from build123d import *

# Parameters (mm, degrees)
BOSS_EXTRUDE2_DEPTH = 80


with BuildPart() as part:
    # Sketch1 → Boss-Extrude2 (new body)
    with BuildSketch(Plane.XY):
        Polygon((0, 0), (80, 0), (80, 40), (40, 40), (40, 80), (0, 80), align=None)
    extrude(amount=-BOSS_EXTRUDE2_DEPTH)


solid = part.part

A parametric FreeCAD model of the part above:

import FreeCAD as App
import Part
import Sketcher


def add_polygon(sketch, points):
    """Adds a closed chain of lines whose ends are joined by coincident constraints."""
    first, n = sketch.GeometryCount, len(points)
    for a, b in zip(points, points[1:] + points[:1]):
        sketch.addGeometry(Part.LineSegment(App.Vector(*a, 0), App.Vector(*b, 0)), False)
    for i in range(n):
        sketch.addConstraint(Sketcher.Constraint("Coincident", first + i, 2, first + (i + 1) % n, 1))

doc = App.newDocument("Part")
body = doc.addObject("PartDesign::Body", "Body")

# Sketch on XY plane
sketch1 = doc.addObject("Sketcher::SketchObject", "Sketch")
body.addObject(sketch1)
sketch1.AttachmentSupport = (doc.XY_Plane, [""])
sketch1.MapMode = "FlatFace"
add_polygon(sketch1, [(0, 0), (80, 0), (80, 40), (40, 40), (40, 80), (0, 80)])  # lines 0-5
sketch1.addConstraint(Sketcher.Constraint("Horizontal", 0))
sketch1.addConstraint(Sketcher.Constraint("Vertical", 1))
sketch1.addConstraint(Sketcher.Constraint("Horizontal", 2))
sketch1.addConstraint(Sketcher.Constraint("Vertical", 3))
sketch1.addConstraint(Sketcher.Constraint("Horizontal", 4))
sketch1.addConstraint(Sketcher.Constraint("Vertical", 5))
sketch1.addConstraint(Sketcher.Constraint("Coincident", 5, 2, -1, 1))
sketch1.addConstraint(Sketcher.Constraint("Equal", 2, 4))
sketch1.addConstraint(Sketcher.Constraint("Equal", 4, 1))
sketch1.addConstraint(Sketcher.Constraint("Equal", 1, 3))
sketch1.addConstraint(Sketcher.Constraint("DistanceX", 0, 1, 0, 2, 80.0))
pad1 = doc.addObject("PartDesign::Pad", "Pad")
body.addObject(pad1)
pad1.Profile = sketch1
pad1.Length = 80
pad1.Reversed = True

doc.recompute()
